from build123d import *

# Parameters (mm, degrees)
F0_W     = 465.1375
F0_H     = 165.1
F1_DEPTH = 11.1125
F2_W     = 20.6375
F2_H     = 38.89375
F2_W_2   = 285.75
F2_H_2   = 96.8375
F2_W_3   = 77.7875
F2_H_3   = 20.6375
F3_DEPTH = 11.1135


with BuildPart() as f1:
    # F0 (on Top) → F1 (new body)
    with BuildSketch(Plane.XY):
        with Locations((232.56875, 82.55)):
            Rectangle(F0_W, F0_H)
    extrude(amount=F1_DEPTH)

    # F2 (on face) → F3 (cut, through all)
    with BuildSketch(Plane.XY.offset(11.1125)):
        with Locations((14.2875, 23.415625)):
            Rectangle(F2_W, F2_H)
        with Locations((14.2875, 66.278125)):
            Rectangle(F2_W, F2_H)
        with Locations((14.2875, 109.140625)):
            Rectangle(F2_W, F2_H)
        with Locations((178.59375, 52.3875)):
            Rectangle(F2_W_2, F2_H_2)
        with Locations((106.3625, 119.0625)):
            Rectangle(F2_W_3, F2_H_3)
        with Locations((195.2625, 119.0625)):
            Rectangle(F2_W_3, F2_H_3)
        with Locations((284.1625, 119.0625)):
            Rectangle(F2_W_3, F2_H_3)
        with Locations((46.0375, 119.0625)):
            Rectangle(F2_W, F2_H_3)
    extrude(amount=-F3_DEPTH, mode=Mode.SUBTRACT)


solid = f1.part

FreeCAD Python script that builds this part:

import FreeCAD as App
import Part
import Sketcher

V = App.Vector
Q = App.Units.Quantity

doc = App.newDocument("Part")
body = doc.addObject("PartDesign::Body", "Body")

# Sketch on XY plane
sketch1 = doc.addObject("Sketcher::SketchObject", "Sketch")
body.addObject(sketch1)
sketch1.AttachmentSupport = (doc.XY_Plane, [""])
sketch1.MapMode = "FlatFace"
sketch1.addGeometry([
    Part.LineSegment(V(0, 165, 0), V(0, 0, 0)),
    Part.LineSegment(V(0, 0, 0), V(465, 0, 0)),
    Part.LineSegment(V(465, 0, 0), V(465, 165, 0)),
    Part.LineSegment(V(465, 165, 0), V(0, 165, 0)),
], False)
sketch1.addConstraint([
    Sketcher.Constraint("Coincident", 0, 2, 1, 1),
    Sketcher.Constraint("Coincident", 1, 2, 2, 1),
    Sketcher.Constraint("Coincident", 2, 2, 3, 1),
    Sketcher.Constraint("Coincident", 3, 2, 0, 1),
    Sketcher.Constraint("Vertical", 0),
    Sketcher.Constraint("Horizontal", 1),
    Sketcher.Constraint("Vertical", 2),
    Sketcher.Constraint("Horizontal", 3),
    Sketcher.Constraint("Coincident", 0, 2, -1, 1),
    Sketcher.Constraint("DistanceY", 0, 2, 0, 1, Q("6.5 in")),
    Sketcher.Constraint("DistanceX", 1, 1, 1, 2, Q("18.3125 in")),
])
pad1 = doc.addObject("PartDesign::Pad", "Pad")
body.addObject(pad1)
pad1.Profile = sketch1
pad1.Length = Q("0.4375 in")

# Sketch on XY plane
sketch2 = doc.addObject("Sketcher::SketchObject", "Sketch001")
body.addObject(sketch2)
sketch2.AttachmentSupport = (doc.XY_Plane, [""])
sketch2.MapMode = "FlatFace"
sketch2.AttachmentOffset = App.Placement(V(0, 0, 0.4375 * 25.4), App.Rotation())
sketch2.addGeometry([
    Part.LineSegment(V(4, 43, 0), V(4, 4, 0)),  # 0
    Part.LineSegment(V(4, 4, 0), V(25, 4, 0)),  # 1
    Part.LineSegment(V(25, 4, 0), V(25, 43, 0)),  # 2
    Part.LineSegment(V(25, 43, 0), V(4, 43, 0)),  # 3
    Part.LineSegment(V(4, 86, 0), V(4, 47, 0)),  # 4
    Part.LineSegment(V(4, 47, 0), V(25, 47, 0)),  # 5
    Part.LineSegment(V(25, 47, 0), V(25, 86, 0)),  # 6
    Part.LineSegment(V(25, 86, 0), V(4, 86, 0)),  # 7
    Part.LineSegment(V(4, 129, 0), V(4, 90, 0)),  # 8
    Part.LineSegment(V(4, 90, 0), V(25, 90, 0)),  # 9
    Part.LineSegment(V(25, 90, 0), V(25, 129, 0)),  # 10
    Part.LineSegment(V(25, 129, 0), V(4, 129, 0)),  # 11
    Part.LineSegment(V(36, 101, 0), V(36, 4, 0)),  # 12
    Part.LineSegment(V(36, 4, 0), V(321, 4, 0)),  # 13
    Part.LineSegment(V(321, 4, 0), V(321, 101, 0)),  # 14
    Part.LineSegment(V(321, 101, 0), V(36, 101, 0)),  # 15
    Part.LineSegment(V(67, 129, 0), V(67, 109, 0)),  # 16
    Part.LineSegment(V(67, 109, 0), V(145, 109, 0)),  # 17
    Part.LineSegment(V(145, 109, 0), V(145, 129, 0)),  # 18
    Part.LineSegment(V(145, 129, 0), V(67, 129, 0)),  # 19
    Part.LineSegment(V(156, 129, 0), V(156, 109, 0)),  # 20
    Part.LineSegment(V(156, 109, 0), V(234, 109, 0)),  # 21
    Part.LineSegment(V(234, 109, 0), V(234, 129, 0)),  # 22
    Part.LineSegment(V(234, 129, 0), V(156, 129, 0)),  # 23
    Part.LineSegment(V(245, 129, 0), V(245, 109, 0)),  # 24
    Part.LineSegment(V(245, 109, 0), V(323, 109, 0)),  # 25
    Part.LineSegment(V(323, 109, 0), V(323, 129, 0)),  # 26
    Part.LineSegment(V(323, 129, 0), V(245, 129, 0)),  # 27
    Part.LineSegment(V(36, 129, 0), V(36, 109, 0)),  # 28
    Part.LineSegment(V(36, 109, 0), V(56, 109, 0)),  # 29
    Part.LineSegment(V(56, 109, 0), V(56, 129, 0)),  # 30
    Part.LineSegment(V(56, 129, 0), V(36, 129, 0)),  # 31
], False)
sketch2.addConstraint([
    Sketcher.Constraint("Coincident", 0, 2, 1, 1),
    Sketcher.Constraint("Coincident", 1, 2, 2, 1),
    Sketcher.Constraint("Coincident", 2, 2, 3, 1),
    Sketcher.Constraint("Coincident", 3, 2, 0, 1),
    Sketcher.Constraint("Coincident", 4, 2, 5, 1),
    Sketcher.Constraint("Coincident", 5, 2, 6, 1),
    Sketcher.Constraint("Coincident", 6, 2, 7, 1),
    Sketcher.Constraint("Coincident", 7, 2, 4, 1),
    Sketcher.Constraint("Coincident", 8, 2, 9, 1),
    Sketcher.Constraint("Coincident", 9, 2, 10, 1),
    Sketcher.Constraint("Coincident", 10, 2, 11, 1),
    Sketcher.Constraint("Coincident", 11, 2, 8, 1),
    Sketcher.Constraint("Coincident", 12, 2, 13, 1),
    Sketcher.Constraint("Coincident", 13, 2, 14, 1),
    Sketcher.Constraint("Coincident", 14, 2, 15, 1),
    Sketcher.Constraint("Coincident", 15, 2, 12, 1),
    Sketcher.Constraint("Coincident", 16, 2, 17, 1),
    Sketcher.Constraint("Coincident", 17, 2, 18, 1),
    Sketcher.Constraint("Coincident", 18, 2, 19, 1),
    Sketcher.Constraint("Coincident", 19, 2, 16, 1),
    Sketcher.Constraint("Coincident", 20, 2, 21, 1),
    Sketcher.Constraint("Coincident", 21, 2, 22, 1),
    Sketcher.Constraint("Coincident", 22, 2, 23, 1),
    Sketcher.Constraint("Coincident", 23, 2, 20, 1),
    Sketcher.Constraint("Coincident", 24, 2, 25, 1),
    Sketcher.Constraint("Coincident", 25, 2, 26, 1),
    Sketcher.Constraint("Coincident", 26, 2, 27, 1),
    Sketcher.Constraint("Coincident", 27, 2, 24, 1),
    Sketcher.Constraint("Coincident", 28, 2, 29, 1),
    Sketcher.Constraint("Coincident", 29, 2, 30, 1),
    Sketcher.Constraint("Coincident", 30, 2, 31, 1),
    Sketcher.Constraint("Coincident", 31, 2, 28, 1),
    Sketcher.Constraint("Vertical", 0),
    Sketcher.Constraint("Horizontal", 1),
    Sketcher.Constraint("Vertical", 2),
    Sketcher.Constraint("Horizontal", 3),
    Sketcher.Constraint("Vertical", 4),
    Sketcher.Constraint("Horizontal", 5),
    Sketcher.Constraint("Vertical", 6),
    Sketcher.Constraint("Horizontal", 7),
    Sketcher.Constraint("Vertical", 8),
    Sketcher.Constraint("Horizontal", 9),
    Sketcher.Constraint("Vertical", 10),
    Sketcher.Constraint("Horizontal", 11),
    Sketcher.Constraint("Vertical", 12),
    Sketcher.Constraint("Horizontal", 13),
    Sketcher.Constraint("Vertical", 14),
    Sketcher.Constraint("Horizontal", 15),
    Sketcher.Constraint("Vertical", 16),
    Sketcher.Constraint("Horizontal", 17),
    Sketcher.Constraint("Vertical", 18),
    Sketcher.Constraint("Horizontal", 19),
    Sketcher.Constraint("Vertical", 20),
    Sketcher.Constraint("Horizontal", 21),
    Sketcher.Constraint("Vertical", 22),
    Sketcher.Constraint("Horizontal", 23),
    Sketcher.Constraint("Vertical", 24),
    Sketcher.Constraint("Horizontal", 25),
    Sketcher.Constraint("Vertical", 26),
    Sketcher.Constraint("Horizontal", 27),
    Sketcher.Constraint("Vertical", 28),
    Sketcher.Constraint("Horizontal", 29),
    Sketcher.Constraint("Vertical", 30),
    Sketcher.Constraint("Horizontal", 31),
    Sketcher.Constraint("Horizontal", 1, 2, 12, 2),
    Sketcher.Constraint("Horizontal", 17, 2, 20, 2),
    Sketcher.Constraint("Horizontal", 19, 2, 22, 2),
    Sketcher.Constraint("Horizontal", 21, 2, 24, 2),
    Sketcher.Constraint("Horizontal", 23, 2, 26, 2),
    Sketcher.Constraint("Horizontal", 25, 2, 28, 2),
    Sketcher.Constraint("Horizontal", 27, 2, 30, 2),
    Sketcher.Constraint("Vertical", 3, 2, 4, 2),
    Sketcher.Constraint("Vertical", 2, 2, 5, 2),
    Sketcher.Constraint("Vertical", 7, 2, 8, 2),
    Sketcher.Constraint("Vertical", 6, 2, 9, 2),
    Sketcher.Constraint("Vertical", 15, 2, 28, 2),
    Sketcher.Constraint("Equal", 19, 21),
    Sketcher.Constraint("Equal", 23, 25),
    Sketcher.Constraint("Equal", 11, 29),
    Sketcher.Constraint("Equal", 2, 4),
    Sketcher.Constraint("Equal", 6, 8),
    Sketcher.Constraint("Equal", 31, 16),
    Sketcher.Constraint("DistanceX", 24, 2, 14, 2, Q("3 in")),
    Sketcher.Constraint("DistanceX", 13, 1, 13, 2, Q("11.25 in")),
    Sketcher.Constraint("DistanceX", 8, 2, 16, 2, Q("2.5 in")),
    Sketcher.Constraint("DistanceX", 16, 2, 20, 2, Q("3.5 in")),
    Sketcher.Constraint("DistanceX", 20, 2, 24, 2, Q("3.5 in")),
    Sketcher.Constraint("DistanceX", 1, 1, 1, 2, Q("0.8125 in")),
    Sketcher.Constraint("DistanceX", 17, 1, 17, 2, Q("3.0625 in")),
    Sketcher.Constraint("DistanceY", 0, 2, 0, 1, Q("1.53125 in")),
    Sketcher.Constraint("DistanceY", 12, 2, 12, 1, Q("3.8125 in")),
    Sketcher.Constraint("DistanceY", 9, 2, 16, 2, Q("0.75 in")),
    Sketcher.Constraint("DistanceX", -1, 1, 0, 2, Q("0.15625 in")),
    Sketcher.Constraint("DistanceY", -1, 1, 0, 2, Q("0.15625 in")),
    Sketcher.Constraint("DistanceY", -1, 1, 4, 2, Q("1.84375 in")),
    Sketcher.Constraint("DistanceY", -1, 1, 8, 2, Q("3.53125 in")),
])
pocket1 = doc.addObject("PartDesign::Pocket", "Pocket")
body.addObject(pocket1)
pocket1.Profile = sketch2
pocket1.Type = "ThroughAll"

doc.recompute()
